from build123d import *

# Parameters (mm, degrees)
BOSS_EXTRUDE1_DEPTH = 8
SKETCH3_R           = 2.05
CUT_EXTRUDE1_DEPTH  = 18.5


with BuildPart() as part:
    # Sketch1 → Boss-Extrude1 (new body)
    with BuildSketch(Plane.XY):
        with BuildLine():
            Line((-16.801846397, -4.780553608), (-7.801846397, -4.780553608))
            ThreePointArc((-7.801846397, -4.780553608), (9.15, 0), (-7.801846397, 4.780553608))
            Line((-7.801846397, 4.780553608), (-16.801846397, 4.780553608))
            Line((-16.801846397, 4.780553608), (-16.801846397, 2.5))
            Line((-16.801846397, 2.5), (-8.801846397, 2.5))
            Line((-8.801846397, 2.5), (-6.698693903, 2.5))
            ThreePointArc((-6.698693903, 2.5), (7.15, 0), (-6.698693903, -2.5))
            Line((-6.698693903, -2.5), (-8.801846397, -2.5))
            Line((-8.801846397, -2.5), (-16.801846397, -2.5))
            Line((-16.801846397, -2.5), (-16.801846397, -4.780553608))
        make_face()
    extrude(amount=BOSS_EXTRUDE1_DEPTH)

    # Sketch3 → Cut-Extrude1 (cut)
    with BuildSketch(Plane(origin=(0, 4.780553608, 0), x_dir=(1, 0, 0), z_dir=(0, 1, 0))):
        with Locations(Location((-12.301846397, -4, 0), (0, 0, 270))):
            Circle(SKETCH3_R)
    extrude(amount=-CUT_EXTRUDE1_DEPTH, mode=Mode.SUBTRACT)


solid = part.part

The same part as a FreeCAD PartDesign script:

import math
import FreeCAD as App
import Part
import Sketcher

V = App.Vector

doc = App.newDocument("Part")
body = doc.addObject("PartDesign::Body", "Body")

# Sketch on XY plane
sketch1 = body.newObject("Sketcher::SketchObject", "Sketch")
sketch1.AttachmentSupport = (doc.getObject("XY_Plane"), [""])
sketch1.MapMode = "FlatFace"
sketch1.addGeometry(Part.LineSegment(V(-16.8, -4.8, 0), V(-7.8, -4.8, 0)), False)
sketch1.addGeometry(Part.ArcOfCircle(Part.Circle(V(0, 0, 0), V(0, 0, 1), 9.2), math.radians(-149), math.radians(149)), False)
sketch1.addGeometry(Part.LineSegment(V(-7.8, 4.8, 0), V(-16.8, 4.8, 0)), False)
sketch1.addGeometry(Part.LineSegment(V(-16.8, 4.8, 0), V(-16.8, 2.5, 0)), False)
sketch1.addGeometry(Part.LineSegment(V(-16.8, 2.5, 0), V(-6.7, 2.5, 0)), False)
sketch1.addGeometry(Part.ArcOfCircle(Part.Circle(V(0, 0, 0), V(0, 0, 1), 7.2), math.radians(-160), math.radians(160)), False)
sketch1.addGeometry(Part.LineSegment(V(-6.7, -2.5, 0), V(-16.8, -2.5, 0)), False)
sketch1.addGeometry(Part.LineSegment(V(-16.8, -2.5, 0), V(-16.8, -4.8, 0)), False)
sketch1.addConstraint(Sketcher.Constraint("Coincident", 0, 2, 1, 1))
sketch1.addConstraint(Sketcher.Constraint("Coincident", 1, 2, 2, 1))
sketch1.addConstraint(Sketcher.Constraint("Coincident", 2, 2, 3, 1))
sketch1.addConstraint(Sketcher.Constraint("Coincident", 3, 2, 4, 1))
sketch1.addConstraint(Sketcher.Constraint("Coincident", 4, 2, 5, 2))
sketch1.addConstraint(Sketcher.Constraint("Coincident", 5, 1, 6, 1))
sketch1.addConstraint(Sketcher.Constraint("Coincident", 6, 2, 7, 1))
sketch1.addConstraint(Sketcher.Constraint("Coincident", 7, 2, 0, 1))
sketch1.addConstraint(Sketcher.Constraint("Horizontal", 0))
sketch1.addConstraint(Sketcher.Constraint("Horizontal", 2))
sketch1.addConstraint(Sketcher.Constraint("Vertical", 3))
sketch1.addConstraint(Sketcher.Constraint("Horizontal", 4))
sketch1.addConstraint(Sketcher.Constraint("Horizontal", 6))
sketch1.addConstraint(Sketcher.Constraint("Vertical", 7))
sketch1.addConstraint(Sketcher.Constraint("Coincident", 1, 3, -1, 1))
sketch1.addConstraint(Sketcher.Constraint("Coincident", 5, 3, -1, 1))
sketch1.addConstraint(Sketcher.Constraint("Symmetric", 3, 2, 6, 2, -1))
sketch1.addConstraint(Sketcher.Constraint("Vertical", 0, 2, 1, 2))
sketch1.addConstraint(Sketcher.Constraint("DistanceX", 0, 1, 0, 2, 9.0))
sketch1.addConstraint(Sketcher.Constraint("Radius", 1, 9.15))
sketch1.addConstraint(Sketcher.Constraint("Radius", 5, 7.15))
sketch1.addConstraint(Sketcher.Constraint("DistanceY", 5, 1, 4, 2, 5.0))
sketch1.addConstraint(Sketcher.Constraint("DistanceX", 4, 1, 4, 2, 10.103152))
pad1 = body.newObject("PartDesign::Pad", "Pad")
pad1.Profile = sketch1
pad1.Length = 8

# Sketch on XZ plane
sketch2 = body.newObject("Sketcher::SketchObject", "Sketch001")
sketch2.AttachmentSupport = (doc.getObject("XZ_Plane"), [""])
sketch2.MapMode = "FlatFace"
sketch2.AttachmentOffset = App.Placement(V(0, 0, -4.780554), App.Rotation())
sketch2.addGeometry(Part.Circle(V(-12.3, 4, 0), V(0, 0, 1), 2), False)
sketch2.addConstraint(Sketcher.Constraint("Diameter", 0, 4.1))
sketch2.addConstraint(Sketcher.Constraint("DistanceY", -1, 1, 0, 3, 4.0))
sketch2.addConstraint(Sketcher.Constraint("DistanceX", 0, 3, -1, 1, 12.301846))
pocket1 = body.newObject("PartDesign::Pocket", "Pocket")
pocket1.Profile = sketch2
pocket1.Length = 18.5
pocket1.Reversed = True

doc.recompute()
